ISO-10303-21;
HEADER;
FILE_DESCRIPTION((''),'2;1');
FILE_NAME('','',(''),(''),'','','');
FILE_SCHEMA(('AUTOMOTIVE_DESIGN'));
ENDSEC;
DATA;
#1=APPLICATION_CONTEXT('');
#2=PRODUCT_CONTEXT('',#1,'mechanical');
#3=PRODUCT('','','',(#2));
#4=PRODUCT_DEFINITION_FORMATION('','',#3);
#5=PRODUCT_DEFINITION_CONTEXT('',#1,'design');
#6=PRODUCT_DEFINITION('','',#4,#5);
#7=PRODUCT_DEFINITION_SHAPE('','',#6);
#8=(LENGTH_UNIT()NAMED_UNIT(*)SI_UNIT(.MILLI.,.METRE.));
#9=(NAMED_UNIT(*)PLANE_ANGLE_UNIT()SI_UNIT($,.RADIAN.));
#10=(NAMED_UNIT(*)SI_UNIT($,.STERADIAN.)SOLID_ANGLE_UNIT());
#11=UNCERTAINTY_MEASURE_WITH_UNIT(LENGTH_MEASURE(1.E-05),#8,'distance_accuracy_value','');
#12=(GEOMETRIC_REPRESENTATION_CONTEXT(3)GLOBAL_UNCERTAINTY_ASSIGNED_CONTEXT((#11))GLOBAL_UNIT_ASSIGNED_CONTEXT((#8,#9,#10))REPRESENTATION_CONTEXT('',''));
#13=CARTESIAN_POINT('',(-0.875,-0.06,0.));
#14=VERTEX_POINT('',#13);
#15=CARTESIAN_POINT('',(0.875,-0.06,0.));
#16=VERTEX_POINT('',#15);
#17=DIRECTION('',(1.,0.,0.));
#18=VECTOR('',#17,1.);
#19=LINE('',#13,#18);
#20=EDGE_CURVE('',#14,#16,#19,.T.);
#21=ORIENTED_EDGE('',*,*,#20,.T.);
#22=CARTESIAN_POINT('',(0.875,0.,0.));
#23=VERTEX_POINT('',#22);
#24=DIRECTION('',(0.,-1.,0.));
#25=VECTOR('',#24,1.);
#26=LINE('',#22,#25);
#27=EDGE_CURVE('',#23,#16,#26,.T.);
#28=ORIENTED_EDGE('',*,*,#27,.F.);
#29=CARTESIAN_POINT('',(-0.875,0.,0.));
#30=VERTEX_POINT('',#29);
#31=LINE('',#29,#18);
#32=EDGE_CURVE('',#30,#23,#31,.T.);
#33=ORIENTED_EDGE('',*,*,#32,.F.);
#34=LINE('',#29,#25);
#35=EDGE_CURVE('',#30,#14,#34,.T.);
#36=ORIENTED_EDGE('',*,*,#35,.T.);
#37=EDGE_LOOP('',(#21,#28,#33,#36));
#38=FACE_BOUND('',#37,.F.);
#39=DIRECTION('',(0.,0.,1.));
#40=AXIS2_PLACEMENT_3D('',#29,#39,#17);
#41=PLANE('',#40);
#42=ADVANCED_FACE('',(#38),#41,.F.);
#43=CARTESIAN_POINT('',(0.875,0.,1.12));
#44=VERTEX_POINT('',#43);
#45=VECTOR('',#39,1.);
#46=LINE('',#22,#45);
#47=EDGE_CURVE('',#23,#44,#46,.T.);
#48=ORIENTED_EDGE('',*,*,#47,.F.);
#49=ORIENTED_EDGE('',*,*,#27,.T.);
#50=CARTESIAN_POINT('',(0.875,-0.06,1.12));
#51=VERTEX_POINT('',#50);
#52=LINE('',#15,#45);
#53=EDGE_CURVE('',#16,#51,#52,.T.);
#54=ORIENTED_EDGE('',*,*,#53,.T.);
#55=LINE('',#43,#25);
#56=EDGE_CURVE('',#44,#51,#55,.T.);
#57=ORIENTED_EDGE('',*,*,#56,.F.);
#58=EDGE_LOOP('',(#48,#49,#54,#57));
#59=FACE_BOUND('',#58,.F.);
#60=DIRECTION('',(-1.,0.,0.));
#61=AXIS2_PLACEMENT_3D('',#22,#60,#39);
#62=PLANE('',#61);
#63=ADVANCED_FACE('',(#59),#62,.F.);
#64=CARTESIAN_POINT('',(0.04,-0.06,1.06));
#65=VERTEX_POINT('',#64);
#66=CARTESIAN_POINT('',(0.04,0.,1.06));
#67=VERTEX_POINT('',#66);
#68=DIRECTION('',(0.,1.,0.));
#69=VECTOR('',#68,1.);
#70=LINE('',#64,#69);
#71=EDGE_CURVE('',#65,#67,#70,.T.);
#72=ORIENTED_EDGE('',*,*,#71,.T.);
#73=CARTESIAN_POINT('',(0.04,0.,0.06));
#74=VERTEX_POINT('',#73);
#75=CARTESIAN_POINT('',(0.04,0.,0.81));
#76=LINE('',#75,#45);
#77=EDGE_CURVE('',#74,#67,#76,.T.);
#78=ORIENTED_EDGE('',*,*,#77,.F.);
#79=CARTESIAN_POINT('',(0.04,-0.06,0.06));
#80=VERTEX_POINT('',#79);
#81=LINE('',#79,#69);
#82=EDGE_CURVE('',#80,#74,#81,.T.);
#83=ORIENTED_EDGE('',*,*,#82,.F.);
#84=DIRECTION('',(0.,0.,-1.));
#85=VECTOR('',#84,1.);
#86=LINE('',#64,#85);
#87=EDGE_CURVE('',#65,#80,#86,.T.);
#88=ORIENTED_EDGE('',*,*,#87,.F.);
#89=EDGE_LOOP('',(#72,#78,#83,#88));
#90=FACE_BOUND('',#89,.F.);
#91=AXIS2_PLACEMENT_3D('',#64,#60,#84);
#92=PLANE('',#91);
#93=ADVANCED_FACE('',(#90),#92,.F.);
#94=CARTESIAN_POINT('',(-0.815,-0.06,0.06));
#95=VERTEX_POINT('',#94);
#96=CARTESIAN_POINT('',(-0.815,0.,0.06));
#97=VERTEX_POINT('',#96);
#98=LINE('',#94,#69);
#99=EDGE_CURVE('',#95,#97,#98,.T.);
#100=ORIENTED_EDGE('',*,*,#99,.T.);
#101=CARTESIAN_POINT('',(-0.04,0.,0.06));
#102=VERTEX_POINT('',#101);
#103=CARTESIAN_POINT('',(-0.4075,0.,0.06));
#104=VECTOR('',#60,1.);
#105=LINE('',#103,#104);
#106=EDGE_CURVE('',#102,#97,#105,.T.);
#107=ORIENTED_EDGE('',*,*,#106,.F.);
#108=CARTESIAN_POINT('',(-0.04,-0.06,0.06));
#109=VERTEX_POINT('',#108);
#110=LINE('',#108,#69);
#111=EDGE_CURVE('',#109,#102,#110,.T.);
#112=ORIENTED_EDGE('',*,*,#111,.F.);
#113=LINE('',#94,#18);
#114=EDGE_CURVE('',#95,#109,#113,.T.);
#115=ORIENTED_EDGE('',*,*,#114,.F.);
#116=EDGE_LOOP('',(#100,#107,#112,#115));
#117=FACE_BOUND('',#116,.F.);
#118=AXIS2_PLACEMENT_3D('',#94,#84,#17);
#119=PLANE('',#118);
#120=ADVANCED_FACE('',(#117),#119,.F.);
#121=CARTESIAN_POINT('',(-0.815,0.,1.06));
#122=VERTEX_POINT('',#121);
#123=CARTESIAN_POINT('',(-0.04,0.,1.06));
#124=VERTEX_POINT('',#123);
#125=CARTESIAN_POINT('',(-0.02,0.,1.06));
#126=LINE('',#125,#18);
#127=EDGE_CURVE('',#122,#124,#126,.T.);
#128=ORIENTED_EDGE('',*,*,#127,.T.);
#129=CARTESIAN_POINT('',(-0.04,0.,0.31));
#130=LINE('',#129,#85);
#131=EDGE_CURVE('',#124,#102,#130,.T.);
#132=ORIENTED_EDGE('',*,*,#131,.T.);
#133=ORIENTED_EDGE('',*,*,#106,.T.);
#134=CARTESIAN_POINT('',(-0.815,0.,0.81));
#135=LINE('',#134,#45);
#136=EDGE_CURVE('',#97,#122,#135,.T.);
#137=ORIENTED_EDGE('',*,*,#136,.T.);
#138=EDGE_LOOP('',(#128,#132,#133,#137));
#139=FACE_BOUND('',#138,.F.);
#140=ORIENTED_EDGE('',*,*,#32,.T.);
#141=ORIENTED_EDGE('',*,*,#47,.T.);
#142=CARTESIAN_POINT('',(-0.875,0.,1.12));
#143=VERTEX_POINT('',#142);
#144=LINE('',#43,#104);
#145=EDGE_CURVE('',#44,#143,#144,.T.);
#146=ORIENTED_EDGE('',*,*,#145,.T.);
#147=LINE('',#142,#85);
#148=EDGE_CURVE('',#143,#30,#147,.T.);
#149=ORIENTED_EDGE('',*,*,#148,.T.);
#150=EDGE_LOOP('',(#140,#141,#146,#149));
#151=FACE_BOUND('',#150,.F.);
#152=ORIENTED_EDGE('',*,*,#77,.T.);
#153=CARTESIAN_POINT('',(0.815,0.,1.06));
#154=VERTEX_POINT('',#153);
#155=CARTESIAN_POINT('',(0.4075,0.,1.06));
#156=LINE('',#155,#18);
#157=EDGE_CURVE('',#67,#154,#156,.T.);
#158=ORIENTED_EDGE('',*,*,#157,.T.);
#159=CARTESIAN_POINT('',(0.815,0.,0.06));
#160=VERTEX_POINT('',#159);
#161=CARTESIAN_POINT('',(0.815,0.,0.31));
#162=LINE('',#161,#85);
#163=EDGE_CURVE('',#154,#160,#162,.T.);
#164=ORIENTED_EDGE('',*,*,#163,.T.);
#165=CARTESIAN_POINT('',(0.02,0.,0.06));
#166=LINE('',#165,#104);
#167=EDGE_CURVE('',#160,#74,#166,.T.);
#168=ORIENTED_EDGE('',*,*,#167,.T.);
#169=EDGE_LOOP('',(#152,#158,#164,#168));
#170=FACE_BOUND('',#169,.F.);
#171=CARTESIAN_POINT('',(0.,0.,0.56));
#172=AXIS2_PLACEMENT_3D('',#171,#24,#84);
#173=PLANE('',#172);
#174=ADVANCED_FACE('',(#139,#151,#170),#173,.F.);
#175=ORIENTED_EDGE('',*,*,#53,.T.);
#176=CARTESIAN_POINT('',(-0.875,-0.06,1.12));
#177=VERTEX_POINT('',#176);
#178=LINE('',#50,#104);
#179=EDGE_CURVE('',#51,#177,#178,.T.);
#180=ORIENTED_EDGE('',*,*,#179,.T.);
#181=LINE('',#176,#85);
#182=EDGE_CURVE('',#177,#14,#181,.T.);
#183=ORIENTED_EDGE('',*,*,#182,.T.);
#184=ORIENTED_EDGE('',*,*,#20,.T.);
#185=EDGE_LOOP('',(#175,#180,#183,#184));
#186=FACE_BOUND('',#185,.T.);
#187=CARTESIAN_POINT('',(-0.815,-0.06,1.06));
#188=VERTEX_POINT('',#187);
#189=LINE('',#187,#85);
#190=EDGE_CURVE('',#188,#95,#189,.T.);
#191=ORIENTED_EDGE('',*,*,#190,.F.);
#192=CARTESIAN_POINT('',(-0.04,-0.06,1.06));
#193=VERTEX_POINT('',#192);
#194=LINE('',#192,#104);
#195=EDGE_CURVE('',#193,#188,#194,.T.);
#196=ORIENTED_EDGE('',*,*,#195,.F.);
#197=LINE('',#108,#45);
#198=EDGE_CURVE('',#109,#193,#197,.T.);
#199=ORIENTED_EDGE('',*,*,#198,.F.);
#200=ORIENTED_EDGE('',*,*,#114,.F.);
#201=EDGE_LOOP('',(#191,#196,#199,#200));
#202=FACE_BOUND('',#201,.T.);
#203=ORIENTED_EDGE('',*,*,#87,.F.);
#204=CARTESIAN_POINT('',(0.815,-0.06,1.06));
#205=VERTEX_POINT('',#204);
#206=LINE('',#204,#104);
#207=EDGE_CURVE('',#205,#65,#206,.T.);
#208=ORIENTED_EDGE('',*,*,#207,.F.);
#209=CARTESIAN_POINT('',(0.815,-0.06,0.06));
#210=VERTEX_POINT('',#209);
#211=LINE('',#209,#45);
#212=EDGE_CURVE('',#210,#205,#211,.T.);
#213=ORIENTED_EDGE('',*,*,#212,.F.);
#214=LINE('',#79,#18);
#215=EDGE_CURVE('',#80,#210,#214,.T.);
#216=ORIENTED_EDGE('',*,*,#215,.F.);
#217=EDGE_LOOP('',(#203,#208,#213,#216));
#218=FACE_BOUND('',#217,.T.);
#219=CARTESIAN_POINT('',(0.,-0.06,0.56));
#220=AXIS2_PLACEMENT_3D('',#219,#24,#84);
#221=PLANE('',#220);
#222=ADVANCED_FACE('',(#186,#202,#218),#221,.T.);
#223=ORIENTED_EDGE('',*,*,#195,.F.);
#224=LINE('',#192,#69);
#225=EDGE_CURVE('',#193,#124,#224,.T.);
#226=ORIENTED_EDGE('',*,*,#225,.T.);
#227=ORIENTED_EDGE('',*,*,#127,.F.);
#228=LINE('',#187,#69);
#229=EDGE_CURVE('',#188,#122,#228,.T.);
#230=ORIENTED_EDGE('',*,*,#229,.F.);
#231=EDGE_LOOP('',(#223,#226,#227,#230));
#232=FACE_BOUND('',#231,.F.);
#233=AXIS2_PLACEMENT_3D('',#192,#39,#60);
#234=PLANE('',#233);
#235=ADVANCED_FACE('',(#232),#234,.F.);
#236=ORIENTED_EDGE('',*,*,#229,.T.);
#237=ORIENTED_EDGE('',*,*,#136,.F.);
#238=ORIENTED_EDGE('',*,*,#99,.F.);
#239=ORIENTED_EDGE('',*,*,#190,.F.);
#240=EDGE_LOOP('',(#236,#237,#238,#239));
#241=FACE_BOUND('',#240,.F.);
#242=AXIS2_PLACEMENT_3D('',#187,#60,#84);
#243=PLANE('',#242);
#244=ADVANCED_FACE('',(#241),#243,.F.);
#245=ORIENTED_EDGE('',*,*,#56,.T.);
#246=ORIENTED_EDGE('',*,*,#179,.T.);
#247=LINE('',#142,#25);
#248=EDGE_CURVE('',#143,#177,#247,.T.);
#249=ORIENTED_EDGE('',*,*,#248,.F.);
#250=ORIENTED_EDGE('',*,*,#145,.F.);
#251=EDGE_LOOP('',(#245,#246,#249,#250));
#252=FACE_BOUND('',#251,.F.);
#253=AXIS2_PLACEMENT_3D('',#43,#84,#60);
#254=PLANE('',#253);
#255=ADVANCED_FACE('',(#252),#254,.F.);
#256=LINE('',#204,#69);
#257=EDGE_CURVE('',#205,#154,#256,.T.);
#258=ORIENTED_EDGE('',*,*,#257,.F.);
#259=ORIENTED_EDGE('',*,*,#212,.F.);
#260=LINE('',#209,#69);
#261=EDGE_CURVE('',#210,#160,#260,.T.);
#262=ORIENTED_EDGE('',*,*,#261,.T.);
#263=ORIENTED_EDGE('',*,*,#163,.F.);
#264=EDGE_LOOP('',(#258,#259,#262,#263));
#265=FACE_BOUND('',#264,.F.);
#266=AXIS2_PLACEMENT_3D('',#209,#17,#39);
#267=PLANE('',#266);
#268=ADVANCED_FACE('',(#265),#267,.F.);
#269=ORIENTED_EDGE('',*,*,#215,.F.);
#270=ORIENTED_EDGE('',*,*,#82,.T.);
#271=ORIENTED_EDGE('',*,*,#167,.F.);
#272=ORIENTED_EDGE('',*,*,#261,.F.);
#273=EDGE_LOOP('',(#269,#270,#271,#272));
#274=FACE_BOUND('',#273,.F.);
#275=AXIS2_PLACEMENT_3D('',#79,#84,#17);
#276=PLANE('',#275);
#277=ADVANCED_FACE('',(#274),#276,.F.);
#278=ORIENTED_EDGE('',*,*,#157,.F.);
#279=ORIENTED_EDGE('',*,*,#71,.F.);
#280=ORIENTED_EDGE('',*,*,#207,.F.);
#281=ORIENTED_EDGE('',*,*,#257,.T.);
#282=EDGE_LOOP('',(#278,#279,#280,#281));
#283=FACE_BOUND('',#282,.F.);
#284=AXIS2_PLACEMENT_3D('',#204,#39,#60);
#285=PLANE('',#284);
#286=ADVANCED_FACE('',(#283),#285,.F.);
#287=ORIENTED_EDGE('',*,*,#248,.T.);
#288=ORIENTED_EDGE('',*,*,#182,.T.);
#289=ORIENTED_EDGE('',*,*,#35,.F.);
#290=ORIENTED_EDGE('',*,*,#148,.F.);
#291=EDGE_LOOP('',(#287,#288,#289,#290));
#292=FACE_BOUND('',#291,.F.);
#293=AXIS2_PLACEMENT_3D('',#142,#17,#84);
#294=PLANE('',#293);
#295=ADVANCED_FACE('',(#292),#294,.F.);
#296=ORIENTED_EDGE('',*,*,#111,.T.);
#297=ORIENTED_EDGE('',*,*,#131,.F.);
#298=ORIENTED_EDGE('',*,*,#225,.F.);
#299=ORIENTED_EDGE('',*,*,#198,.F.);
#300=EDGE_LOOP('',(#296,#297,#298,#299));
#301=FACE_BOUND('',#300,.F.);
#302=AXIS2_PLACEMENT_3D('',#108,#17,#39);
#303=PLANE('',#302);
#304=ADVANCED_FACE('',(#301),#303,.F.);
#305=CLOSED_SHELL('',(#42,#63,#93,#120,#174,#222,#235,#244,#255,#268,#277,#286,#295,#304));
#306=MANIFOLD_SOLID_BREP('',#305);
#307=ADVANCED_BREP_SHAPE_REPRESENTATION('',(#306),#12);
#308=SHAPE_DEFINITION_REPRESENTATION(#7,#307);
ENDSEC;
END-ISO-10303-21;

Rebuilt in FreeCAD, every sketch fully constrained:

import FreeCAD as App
import Part
import Sketcher

V = App.Vector


def add_polygon(sketch, points):
    """Adds a closed chain of lines whose ends are joined by coincident constraints."""
    first, n = sketch.GeometryCount, len(points)
    for a, b in zip(points, points[1:] + points[:1]):
        sketch.addGeometry(Part.LineSegment(App.Vector(*a, 0), App.Vector(*b, 0)), False)
    for i in range(n):
        sketch.addConstraint(Sketcher.Constraint("Coincident", first + i, 2, first + (i + 1) % n, 1))

doc = App.newDocument("Part")
body = doc.addObject("PartDesign::Body", "Body")

# Sketch on XZ plane
sketch1 = body.newObject("Sketcher::SketchObject", "Sketch")
sketch1.AttachmentSupport = (doc.getObject("XZ_Plane"), [""])
sketch1.MapMode = "FlatFace"
add_polygon(sketch1, [(-0.875, 1.12), (-0.875, 0), (0.875, 0), (0.875, 1.12)])  # lines 0-3
sketch1.addConstraint([
    Sketcher.Constraint("Vertical", 0),
    Sketcher.Constraint("Horizontal", 1),
    Sketcher.Constraint("Vertical", 2),
    Sketcher.Constraint("Horizontal", 3),
    Sketcher.Constraint("Symmetric", 0, 2, 1, 2, -1, 1),
    Sketcher.Constraint("DistanceX", 0, 2, -1, 1, 0.875),
    Sketcher.Constraint("DistanceY", 0, 2, 0, 1, 1.12),
])
pad1 = body.newObject("PartDesign::Pad", "Pad")
pad1.Profile = sketch1
pad1.Length = 0.06

# Sketch on XZ plane
sketch2 = body.newObject("Sketcher::SketchObject", "Sketch001")
sketch2.AttachmentSupport = (doc.getObject("XZ_Plane"), [""])
sketch2.MapMode = "FlatFace"
sketch2.AttachmentOffset = App.Placement(V(0, 0, 0.06), App.Rotation())
add_polygon(sketch2, [(0.04, 1.06), (0.04, 0.06), (0.815, 0.06), (0.815, 1.06)])  # lines 0-3
add_polygon(sketch2, [(-0.815, 1.06), (-0.815, 0.06), (-0.04, 0.06), (-0.04, 1.06)])  # lines 4-7
sketch2.addConstraint([
    Sketcher.Constraint("Vertical", 0),
    Sketcher.Constraint("Horizontal", 1),
    Sketcher.Constraint("Vertical", 2),
    Sketcher.Constraint("Horizontal", 3),
    Sketcher.Constraint("Vertical", 4),
    Sketcher.Constraint("Horizontal", 5),
    Sketcher.Constraint("Vertical", 6),
    Sketcher.Constraint("Horizontal", 7),
    Sketcher.Constraint("Symmetric", 1, 2, 4, 2, -2),
    Sketcher.Constraint("Symmetric", 3, 2, 6, 2, -2),
    Sketcher.Constraint("DistanceY", 0, 2, 0, 1, 1.0),
    Sketcher.Constraint("DistanceX", -1, 1, 0, 2, 0.04),
    Sketcher.Constraint("DistanceX", -1, 1, 1, 2, 0.815),
    Sketcher.Constraint("DistanceY", -1, 1, 0, 2, 0.06),
])
pocket1 = body.newObject("PartDesign::Pocket", "Pocket")
pocket1.Profile = sketch2
pocket1.Type = "UpToFirst"

doc.recompute()
